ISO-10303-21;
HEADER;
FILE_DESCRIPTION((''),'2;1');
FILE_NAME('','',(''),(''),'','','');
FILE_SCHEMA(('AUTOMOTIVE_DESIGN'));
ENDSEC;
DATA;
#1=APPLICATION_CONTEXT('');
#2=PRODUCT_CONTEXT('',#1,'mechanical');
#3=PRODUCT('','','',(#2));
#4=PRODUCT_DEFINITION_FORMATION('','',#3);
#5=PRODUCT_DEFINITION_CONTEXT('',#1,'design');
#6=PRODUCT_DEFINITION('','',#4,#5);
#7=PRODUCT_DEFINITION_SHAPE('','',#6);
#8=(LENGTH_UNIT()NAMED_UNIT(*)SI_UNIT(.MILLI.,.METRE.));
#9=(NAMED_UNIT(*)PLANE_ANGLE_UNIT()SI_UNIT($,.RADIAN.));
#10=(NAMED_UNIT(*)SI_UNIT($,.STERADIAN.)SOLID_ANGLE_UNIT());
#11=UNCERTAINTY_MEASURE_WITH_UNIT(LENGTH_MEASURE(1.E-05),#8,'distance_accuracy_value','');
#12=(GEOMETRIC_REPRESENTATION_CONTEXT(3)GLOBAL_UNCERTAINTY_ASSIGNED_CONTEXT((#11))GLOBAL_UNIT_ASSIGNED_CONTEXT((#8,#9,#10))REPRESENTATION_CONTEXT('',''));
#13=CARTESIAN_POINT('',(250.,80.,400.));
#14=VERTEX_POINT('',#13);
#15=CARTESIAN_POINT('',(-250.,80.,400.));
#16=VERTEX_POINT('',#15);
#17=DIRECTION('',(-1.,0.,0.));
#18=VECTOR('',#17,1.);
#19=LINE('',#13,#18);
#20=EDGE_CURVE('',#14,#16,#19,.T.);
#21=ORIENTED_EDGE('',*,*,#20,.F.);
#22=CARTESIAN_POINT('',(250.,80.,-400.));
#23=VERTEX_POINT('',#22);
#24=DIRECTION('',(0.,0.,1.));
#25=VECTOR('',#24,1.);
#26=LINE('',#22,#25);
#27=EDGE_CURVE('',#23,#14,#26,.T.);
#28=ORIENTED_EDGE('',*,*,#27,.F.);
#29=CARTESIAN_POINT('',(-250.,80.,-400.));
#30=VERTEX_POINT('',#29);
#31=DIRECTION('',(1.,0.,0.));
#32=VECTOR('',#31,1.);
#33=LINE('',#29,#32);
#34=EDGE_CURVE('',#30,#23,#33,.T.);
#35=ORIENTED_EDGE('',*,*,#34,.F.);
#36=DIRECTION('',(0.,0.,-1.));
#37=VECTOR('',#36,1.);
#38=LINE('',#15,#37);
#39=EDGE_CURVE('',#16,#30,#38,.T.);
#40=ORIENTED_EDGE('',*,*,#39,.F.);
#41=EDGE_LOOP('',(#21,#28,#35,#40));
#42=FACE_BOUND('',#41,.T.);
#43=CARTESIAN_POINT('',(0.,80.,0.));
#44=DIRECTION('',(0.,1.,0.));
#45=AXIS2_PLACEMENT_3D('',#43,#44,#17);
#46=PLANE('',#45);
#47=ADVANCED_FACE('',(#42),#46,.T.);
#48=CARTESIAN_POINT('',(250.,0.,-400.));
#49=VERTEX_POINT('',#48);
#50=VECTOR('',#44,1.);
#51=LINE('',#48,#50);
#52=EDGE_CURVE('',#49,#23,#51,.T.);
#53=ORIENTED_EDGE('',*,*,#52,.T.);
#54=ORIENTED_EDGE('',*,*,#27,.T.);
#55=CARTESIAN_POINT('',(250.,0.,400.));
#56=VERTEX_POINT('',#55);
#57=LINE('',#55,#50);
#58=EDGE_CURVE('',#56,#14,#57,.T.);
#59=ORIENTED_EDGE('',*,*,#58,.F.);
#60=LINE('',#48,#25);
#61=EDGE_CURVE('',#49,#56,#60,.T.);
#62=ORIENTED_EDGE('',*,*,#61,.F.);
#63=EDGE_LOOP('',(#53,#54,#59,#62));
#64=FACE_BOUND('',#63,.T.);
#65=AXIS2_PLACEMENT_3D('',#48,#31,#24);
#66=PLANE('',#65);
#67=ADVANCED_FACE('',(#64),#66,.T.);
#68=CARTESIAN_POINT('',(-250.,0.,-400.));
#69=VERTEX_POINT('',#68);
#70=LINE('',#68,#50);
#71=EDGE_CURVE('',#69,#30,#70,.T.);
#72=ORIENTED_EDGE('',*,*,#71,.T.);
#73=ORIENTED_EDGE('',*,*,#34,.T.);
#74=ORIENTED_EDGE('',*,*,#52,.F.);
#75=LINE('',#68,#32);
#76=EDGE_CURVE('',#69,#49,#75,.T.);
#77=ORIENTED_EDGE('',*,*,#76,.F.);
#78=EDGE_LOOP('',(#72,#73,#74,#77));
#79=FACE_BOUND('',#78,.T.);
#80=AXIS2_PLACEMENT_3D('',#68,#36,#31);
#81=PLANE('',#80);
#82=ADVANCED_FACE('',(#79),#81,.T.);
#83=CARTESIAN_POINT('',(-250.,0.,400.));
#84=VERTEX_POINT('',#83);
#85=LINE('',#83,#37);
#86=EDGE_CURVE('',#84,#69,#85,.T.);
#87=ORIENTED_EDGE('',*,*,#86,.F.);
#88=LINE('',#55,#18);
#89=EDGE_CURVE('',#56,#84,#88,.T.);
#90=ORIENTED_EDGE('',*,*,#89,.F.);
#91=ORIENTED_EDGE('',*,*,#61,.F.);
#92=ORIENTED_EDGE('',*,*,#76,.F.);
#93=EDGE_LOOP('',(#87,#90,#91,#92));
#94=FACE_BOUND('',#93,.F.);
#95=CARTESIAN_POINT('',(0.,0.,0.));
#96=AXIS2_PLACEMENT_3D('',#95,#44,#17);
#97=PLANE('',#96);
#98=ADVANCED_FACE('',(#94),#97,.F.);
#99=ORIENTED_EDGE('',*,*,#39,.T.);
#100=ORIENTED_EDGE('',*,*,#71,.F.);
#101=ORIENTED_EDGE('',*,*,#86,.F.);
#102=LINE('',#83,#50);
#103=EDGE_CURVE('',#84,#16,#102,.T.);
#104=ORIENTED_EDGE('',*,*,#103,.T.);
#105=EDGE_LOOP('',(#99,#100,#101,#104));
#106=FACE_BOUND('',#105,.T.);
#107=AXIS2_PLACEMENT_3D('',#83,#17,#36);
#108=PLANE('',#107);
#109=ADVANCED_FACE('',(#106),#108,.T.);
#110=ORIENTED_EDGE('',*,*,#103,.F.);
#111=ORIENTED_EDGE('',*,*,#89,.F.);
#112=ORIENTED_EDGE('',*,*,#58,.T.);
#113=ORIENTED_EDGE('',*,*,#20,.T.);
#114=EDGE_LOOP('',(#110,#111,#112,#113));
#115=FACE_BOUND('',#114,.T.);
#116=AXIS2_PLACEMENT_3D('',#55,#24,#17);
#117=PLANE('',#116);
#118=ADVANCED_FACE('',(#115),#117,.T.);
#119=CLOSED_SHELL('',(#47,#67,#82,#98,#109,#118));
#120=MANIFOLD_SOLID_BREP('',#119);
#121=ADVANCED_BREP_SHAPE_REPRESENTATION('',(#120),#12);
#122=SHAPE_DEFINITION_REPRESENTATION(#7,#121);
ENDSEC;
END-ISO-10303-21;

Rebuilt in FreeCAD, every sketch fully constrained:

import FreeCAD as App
import Part
import Sketcher
from FreeCAD import Vector


def add_polygon(sketch, points):
    """Adds a closed chain of lines whose ends are joined by coincident constraints."""
    first, n = sketch.GeometryCount, len(points)
    for a, b in zip(points, points[1:] + points[:1]):
        sketch.addGeometry(Part.LineSegment(App.Vector(*a, 0), App.Vector(*b, 0)), False)
    for i in range(n):
        sketch.addConstraint(Sketcher.Constraint("Coincident", first + i, 2, first + (i + 1) % n, 1))

doc = App.newDocument("Part")
params = doc.addObject("Spreadsheet::Sheet", "Params")
for row, (alias, value) in enumerate([
    ("sketch1_width", "500 mm"),
    ("sketch1_height", "800 mm"),
    ("pad1_length", "80 mm"),
], start=1):
    params.set(f"A{row}", alias)
    params.set(f"B{row}", "=" + value)
    params.setAlias(f"B{row}", alias)

body = doc.addObject("PartDesign::Body", "Body")

# Sketch on XZ plane
sketch1 = body.newObject("Sketcher::SketchObject", "Sketch")
sketch1.AttachmentSupport = (doc.getObject("XZ_Plane"), [""])
sketch1.MapMode = "FlatFace"
add_polygon(sketch1, [(-250, 400), (250, 400), (250, -400), (-250, -400)])  # lines 0-3
sketch1.addConstraint(Sketcher.Constraint("Horizontal", 0))
sketch1.addConstraint(Sketcher.Constraint("Vertical", 1))
sketch1.addConstraint(Sketcher.Constraint("Horizontal", 2))
sketch1.addConstraint(Sketcher.Constraint("Vertical", 3))
sketch1.addConstraint(Sketcher.Constraint("Symmetric", 0, 2, 2, 2, -1, 1))
sketch1.addConstraint(Sketcher.Constraint("DistanceX", 0, 1, 0, 2, 500.0))
sketch1.addConstraint(Sketcher.Constraint("DistanceY", 1, 2, 1, 1, 800.0))
sketch1.setExpression("Constraints[9]", "Params.sketch1_width")
sketch1.setExpression("Constraints[10]", "Params.sketch1_height")
pad1 = body.newObject("PartDesign::Pad", "Pad")
pad1.Profile = sketch1
pad1.setExpression("Length", "Params.pad1_length")
pad1.Reversed = True

doc.recompute()
